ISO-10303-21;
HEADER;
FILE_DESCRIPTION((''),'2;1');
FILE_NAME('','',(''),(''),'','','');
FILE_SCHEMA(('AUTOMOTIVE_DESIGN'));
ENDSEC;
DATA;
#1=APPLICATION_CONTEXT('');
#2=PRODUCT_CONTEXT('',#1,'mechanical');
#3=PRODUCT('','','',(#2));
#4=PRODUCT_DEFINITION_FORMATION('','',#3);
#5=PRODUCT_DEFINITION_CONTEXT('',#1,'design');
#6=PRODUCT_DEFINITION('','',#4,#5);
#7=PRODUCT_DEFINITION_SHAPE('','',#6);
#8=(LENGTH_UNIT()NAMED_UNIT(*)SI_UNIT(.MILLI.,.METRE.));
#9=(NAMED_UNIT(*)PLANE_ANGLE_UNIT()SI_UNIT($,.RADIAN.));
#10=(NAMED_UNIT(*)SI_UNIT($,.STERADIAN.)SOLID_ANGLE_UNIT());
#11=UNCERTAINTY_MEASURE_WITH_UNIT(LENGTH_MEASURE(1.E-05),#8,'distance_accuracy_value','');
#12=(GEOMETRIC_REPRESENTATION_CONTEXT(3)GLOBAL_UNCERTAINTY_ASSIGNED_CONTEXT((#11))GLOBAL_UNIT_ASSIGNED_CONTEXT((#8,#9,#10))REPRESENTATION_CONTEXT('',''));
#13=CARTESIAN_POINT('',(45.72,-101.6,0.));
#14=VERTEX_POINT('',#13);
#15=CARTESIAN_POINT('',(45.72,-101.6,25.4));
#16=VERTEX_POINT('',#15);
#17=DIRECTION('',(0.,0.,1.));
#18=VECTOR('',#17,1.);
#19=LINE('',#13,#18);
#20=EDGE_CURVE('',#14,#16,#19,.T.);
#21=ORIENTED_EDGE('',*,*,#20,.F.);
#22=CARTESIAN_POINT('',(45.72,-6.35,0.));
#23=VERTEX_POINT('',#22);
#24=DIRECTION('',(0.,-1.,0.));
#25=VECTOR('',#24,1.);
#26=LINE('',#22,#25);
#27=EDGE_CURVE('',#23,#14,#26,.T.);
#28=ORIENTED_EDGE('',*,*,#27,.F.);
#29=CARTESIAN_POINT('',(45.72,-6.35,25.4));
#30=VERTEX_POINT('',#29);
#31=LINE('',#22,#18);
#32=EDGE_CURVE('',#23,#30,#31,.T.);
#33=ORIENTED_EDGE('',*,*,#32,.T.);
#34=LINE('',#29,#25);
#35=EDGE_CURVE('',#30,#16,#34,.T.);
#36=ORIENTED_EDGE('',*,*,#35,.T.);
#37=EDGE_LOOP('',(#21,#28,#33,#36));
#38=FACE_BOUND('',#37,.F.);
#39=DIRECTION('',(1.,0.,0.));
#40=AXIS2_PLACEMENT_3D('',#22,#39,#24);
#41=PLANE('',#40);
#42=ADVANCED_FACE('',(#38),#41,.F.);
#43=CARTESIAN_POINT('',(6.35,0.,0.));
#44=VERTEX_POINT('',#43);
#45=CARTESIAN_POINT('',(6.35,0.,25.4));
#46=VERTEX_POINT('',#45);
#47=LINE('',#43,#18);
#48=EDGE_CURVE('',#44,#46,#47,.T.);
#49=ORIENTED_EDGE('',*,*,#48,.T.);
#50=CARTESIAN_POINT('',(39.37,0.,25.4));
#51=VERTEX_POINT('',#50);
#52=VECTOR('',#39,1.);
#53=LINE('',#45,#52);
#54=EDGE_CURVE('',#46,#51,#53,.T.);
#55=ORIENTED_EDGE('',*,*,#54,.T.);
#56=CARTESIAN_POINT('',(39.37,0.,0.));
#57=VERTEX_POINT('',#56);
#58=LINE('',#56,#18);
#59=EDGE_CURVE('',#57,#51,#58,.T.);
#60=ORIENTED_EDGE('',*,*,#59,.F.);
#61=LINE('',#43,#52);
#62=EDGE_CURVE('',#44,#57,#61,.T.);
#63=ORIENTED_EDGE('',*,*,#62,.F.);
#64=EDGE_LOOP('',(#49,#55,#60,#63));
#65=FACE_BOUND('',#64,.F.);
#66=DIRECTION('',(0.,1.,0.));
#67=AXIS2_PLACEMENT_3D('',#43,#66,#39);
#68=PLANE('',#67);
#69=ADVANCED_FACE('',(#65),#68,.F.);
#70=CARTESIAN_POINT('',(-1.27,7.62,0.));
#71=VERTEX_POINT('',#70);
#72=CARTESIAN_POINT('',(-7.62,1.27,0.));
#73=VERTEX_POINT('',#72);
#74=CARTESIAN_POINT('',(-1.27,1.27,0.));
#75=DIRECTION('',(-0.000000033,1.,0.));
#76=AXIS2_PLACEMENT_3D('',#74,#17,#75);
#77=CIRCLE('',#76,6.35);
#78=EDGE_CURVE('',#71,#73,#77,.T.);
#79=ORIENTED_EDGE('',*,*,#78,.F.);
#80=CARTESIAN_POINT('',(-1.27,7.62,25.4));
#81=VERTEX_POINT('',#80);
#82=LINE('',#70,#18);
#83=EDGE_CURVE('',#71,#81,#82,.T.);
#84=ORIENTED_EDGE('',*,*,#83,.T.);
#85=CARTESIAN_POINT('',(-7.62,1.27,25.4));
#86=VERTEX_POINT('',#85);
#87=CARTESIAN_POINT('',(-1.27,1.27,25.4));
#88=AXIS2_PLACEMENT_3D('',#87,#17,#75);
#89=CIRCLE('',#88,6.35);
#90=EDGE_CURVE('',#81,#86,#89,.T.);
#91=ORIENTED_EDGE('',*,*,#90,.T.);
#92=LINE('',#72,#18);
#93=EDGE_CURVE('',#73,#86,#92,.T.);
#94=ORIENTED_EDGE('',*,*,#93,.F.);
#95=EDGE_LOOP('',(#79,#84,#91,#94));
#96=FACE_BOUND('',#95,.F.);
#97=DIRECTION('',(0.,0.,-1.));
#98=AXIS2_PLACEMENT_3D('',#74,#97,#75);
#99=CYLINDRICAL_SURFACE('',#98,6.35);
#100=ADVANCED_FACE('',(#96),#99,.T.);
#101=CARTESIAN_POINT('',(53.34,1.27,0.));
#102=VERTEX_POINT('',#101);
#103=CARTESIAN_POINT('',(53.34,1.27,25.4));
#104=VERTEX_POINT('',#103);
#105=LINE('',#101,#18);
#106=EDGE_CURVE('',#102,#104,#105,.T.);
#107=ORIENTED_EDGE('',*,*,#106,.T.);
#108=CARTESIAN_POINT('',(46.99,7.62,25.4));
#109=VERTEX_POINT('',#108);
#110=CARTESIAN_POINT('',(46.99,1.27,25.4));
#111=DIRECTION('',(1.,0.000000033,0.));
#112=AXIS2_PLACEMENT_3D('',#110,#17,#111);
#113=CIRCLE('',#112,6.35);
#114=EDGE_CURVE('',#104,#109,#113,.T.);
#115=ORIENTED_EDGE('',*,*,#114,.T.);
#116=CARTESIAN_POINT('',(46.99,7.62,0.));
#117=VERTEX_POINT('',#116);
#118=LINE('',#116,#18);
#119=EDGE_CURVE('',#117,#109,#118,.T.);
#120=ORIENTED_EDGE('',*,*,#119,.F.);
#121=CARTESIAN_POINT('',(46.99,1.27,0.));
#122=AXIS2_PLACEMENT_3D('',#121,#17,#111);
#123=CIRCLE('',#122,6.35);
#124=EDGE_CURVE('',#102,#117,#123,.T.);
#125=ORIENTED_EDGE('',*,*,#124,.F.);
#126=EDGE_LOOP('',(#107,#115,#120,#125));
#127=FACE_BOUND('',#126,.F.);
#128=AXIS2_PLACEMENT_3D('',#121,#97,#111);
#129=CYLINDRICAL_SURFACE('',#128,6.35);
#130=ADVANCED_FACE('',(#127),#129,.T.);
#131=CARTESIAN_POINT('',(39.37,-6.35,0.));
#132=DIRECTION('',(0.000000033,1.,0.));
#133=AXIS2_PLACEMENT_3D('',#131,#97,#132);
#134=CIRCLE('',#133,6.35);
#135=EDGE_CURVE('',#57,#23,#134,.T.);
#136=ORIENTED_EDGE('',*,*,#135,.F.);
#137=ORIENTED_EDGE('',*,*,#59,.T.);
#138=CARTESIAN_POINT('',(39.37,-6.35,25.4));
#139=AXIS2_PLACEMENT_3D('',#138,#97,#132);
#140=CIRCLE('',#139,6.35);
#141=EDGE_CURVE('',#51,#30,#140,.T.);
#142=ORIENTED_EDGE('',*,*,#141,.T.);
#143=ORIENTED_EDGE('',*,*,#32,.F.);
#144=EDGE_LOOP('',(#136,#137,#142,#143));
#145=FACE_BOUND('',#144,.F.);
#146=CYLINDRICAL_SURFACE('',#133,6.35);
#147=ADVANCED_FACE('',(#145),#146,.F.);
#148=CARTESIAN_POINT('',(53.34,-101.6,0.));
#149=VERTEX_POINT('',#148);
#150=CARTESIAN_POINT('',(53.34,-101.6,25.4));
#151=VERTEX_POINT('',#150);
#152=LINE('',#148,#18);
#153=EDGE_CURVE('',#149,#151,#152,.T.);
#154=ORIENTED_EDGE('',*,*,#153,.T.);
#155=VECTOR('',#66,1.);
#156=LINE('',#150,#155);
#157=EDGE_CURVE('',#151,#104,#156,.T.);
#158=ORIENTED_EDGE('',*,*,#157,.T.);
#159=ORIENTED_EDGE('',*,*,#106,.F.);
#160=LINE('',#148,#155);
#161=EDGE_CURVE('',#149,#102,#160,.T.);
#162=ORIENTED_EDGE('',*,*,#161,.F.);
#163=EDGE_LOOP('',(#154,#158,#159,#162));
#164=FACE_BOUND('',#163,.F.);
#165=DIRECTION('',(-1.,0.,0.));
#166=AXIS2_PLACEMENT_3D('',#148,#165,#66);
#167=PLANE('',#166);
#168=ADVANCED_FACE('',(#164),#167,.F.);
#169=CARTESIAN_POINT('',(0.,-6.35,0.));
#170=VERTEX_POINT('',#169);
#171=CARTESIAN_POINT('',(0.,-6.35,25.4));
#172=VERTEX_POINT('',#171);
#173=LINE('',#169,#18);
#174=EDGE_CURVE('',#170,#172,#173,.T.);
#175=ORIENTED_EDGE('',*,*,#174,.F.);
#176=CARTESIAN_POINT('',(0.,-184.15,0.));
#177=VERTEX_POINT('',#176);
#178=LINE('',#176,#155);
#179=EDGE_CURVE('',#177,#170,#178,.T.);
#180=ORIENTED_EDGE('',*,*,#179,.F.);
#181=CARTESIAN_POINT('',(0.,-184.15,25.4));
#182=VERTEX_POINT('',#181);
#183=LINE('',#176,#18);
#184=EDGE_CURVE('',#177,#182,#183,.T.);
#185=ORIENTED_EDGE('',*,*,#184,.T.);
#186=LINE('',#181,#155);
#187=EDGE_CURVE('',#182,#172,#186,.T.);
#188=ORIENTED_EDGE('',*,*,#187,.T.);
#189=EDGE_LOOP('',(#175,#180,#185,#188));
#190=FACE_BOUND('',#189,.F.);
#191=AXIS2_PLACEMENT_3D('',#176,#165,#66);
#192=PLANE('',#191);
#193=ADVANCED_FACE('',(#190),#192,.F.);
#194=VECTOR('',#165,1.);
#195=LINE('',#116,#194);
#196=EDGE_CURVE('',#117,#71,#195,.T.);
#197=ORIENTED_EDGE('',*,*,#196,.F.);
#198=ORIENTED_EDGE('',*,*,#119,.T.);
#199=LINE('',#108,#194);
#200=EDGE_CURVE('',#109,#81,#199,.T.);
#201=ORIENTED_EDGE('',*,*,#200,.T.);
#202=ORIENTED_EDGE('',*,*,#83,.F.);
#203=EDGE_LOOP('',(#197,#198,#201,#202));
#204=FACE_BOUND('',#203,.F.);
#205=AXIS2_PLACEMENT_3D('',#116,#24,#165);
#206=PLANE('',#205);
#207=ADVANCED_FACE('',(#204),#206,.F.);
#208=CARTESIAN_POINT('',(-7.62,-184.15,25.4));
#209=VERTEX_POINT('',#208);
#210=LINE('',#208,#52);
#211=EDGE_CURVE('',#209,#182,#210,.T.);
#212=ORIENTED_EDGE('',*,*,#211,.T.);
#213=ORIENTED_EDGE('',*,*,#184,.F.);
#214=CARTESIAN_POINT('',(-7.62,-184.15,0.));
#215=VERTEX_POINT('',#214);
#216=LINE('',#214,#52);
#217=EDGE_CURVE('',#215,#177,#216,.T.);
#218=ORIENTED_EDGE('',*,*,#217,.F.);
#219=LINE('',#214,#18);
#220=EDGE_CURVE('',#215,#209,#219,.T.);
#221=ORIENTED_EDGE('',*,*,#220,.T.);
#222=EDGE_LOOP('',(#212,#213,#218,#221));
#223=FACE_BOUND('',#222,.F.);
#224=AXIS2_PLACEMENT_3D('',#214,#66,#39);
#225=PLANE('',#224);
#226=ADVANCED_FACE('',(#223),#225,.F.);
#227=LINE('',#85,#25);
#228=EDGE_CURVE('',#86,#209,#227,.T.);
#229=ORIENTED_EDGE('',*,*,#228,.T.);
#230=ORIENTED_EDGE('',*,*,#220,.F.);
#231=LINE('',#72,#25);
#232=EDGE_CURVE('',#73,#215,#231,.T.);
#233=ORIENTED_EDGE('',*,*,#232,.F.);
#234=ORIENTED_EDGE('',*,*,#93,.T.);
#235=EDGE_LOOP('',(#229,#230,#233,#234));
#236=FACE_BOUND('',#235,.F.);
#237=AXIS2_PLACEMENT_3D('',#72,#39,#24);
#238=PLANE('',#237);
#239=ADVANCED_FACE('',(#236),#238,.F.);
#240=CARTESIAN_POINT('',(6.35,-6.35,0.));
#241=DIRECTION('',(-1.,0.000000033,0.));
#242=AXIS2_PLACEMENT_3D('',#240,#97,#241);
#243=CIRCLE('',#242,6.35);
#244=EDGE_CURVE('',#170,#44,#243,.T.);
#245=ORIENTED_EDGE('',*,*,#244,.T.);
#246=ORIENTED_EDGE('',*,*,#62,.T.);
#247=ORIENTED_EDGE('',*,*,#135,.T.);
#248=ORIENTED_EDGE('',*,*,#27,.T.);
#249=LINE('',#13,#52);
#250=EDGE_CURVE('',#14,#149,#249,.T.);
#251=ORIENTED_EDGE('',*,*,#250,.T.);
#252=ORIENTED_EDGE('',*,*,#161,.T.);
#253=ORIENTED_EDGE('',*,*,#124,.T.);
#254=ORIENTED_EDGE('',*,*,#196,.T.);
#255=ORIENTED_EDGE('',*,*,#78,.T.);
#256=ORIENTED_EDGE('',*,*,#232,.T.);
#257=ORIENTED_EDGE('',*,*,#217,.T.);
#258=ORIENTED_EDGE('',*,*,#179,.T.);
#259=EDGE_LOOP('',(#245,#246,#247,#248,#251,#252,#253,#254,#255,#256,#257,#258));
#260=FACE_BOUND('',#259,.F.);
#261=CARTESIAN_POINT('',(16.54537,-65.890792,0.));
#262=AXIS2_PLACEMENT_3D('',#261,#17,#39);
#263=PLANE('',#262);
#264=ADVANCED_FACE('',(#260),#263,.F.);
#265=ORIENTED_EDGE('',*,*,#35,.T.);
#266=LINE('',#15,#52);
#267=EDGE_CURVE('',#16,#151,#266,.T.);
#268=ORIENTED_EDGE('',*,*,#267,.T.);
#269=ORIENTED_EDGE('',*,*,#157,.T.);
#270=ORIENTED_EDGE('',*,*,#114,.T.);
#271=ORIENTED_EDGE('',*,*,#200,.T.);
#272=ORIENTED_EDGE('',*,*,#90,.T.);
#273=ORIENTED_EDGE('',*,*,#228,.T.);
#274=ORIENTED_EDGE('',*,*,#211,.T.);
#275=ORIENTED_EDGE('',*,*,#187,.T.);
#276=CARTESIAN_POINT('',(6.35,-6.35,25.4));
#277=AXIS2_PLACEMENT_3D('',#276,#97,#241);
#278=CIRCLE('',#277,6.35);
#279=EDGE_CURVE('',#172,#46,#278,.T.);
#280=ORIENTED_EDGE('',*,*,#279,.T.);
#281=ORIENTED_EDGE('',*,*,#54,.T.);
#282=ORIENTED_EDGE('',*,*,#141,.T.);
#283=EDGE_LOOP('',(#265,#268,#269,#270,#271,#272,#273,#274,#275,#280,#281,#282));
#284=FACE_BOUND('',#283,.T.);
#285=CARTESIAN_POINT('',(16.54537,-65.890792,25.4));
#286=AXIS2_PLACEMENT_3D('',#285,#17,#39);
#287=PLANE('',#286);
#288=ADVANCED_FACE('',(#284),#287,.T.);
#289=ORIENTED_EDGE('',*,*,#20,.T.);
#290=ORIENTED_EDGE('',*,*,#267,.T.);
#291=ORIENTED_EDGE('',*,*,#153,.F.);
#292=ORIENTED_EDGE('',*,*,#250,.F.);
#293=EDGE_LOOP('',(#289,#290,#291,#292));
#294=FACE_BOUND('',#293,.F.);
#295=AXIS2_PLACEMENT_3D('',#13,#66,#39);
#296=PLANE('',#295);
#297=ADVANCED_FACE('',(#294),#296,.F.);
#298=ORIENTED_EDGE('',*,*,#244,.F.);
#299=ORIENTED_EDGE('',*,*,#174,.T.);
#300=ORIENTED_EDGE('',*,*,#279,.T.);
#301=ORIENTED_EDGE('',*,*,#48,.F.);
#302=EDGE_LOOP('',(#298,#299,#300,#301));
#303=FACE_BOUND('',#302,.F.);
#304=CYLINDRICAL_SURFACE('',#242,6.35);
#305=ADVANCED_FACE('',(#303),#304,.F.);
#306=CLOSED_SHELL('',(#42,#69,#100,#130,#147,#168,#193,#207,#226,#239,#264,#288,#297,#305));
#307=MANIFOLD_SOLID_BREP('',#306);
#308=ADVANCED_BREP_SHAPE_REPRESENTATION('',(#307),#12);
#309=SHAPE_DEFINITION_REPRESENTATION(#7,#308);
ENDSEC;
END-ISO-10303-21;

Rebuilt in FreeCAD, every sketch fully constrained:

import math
import FreeCAD as App
import Part
import Sketcher
from FreeCAD import Vector
Q = App.Units.Quantity

doc = App.newDocument("Part")
body = doc.addObject("PartDesign::Body", "Body")

sketch1 = body.newObject("Sketcher::SketchObject", "Sketch")
sketch1.AttachmentSupport = (doc.getObject("XY_Plane"), [""])
sketch1.MapMode = "FlatFace"
sketch1.addGeometry([
    Part.ArcOfCircle(Part.Circle(Vector(6, -6, 0), Vector(0, 0, 1), 6), math.radians(90), math.radians(180)),
    Part.LineSegment(Vector(6, 0, 0), Vector(39, 0, 0)),
    Part.ArcOfCircle(Part.Circle(Vector(39, -6, 0), Vector(0, 0, 1), 6), math.radians(0), math.radians(90)),
    Part.LineSegment(Vector(46, -6, 0), Vector(46, -102, 0)),
    Part.LineSegment(Vector(46, -102, 0), Vector(53, -102, 0)),
    Part.LineSegment(Vector(53, -102, 0), Vector(53, 1, 0)),
    Part.ArcOfCircle(Part.Circle(Vector(47, 1, 0), Vector(0, 0, 1), 6), math.radians(0), math.radians(90)),
    Part.LineSegment(Vector(47, 8, 0), Vector(-1, 8, 0)),
    Part.ArcOfCircle(Part.Circle(Vector(-1, 1, 0), Vector(0, 0, 1), 6), math.radians(90), math.radians(180)),
    Part.LineSegment(Vector(-8, 1, 0), Vector(-8, -184, 0)),
    Part.LineSegment(Vector(-8, -184, 0), Vector(0, -184, 0)),
    Part.LineSegment(Vector(0, -184, 0), Vector(0, -6, 0)),
], False)
sketch1.addConstraint([
    Sketcher.Constraint("Tangent", 0, 1, 1, 1),
    Sketcher.Constraint("Tangent", 1, 2, 2, 2),
    Sketcher.Constraint("Tangent", 2, 1, 3, 1),
    Sketcher.Constraint("Coincident", 3, 2, 4, 1),
    Sketcher.Constraint("Coincident", 4, 2, 5, 1),
    Sketcher.Constraint("Tangent", 5, 2, 6, 1),
    Sketcher.Constraint("Tangent", 6, 2, 7, 1),
    Sketcher.Constraint("Tangent", 7, 2, 8, 1),
    Sketcher.Constraint("Tangent", 8, 2, 9, 1),
    Sketcher.Constraint("Coincident", 9, 2, 10, 1),
    Sketcher.Constraint("Coincident", 10, 2, 11, 1),
    Sketcher.Constraint("Tangent", 11, 2, 0, 2),
    Sketcher.Constraint("Horizontal", 1),
    Sketcher.Constraint("Vertical", 3),
    Sketcher.Constraint("Horizontal", 4),
    Sketcher.Constraint("Vertical", 5),
    Sketcher.Constraint("Horizontal", 7),
    Sketcher.Constraint("Vertical", 9),
    Sketcher.Constraint("Horizontal", 10),
    Sketcher.Constraint("Vertical", 11),
    Sketcher.Constraint("Equal", 0, 2),
    Sketcher.Constraint("Equal", 2, 6),
    Sketcher.Constraint("Equal", 6, 8),
    Sketcher.Constraint("PointOnObject", 0, 1, -1),
    Sketcher.Constraint("PointOnObject", 10, 2, -2),
    Sketcher.Constraint("Equal", 4, 10),
    Sketcher.Constraint("DistanceY", 11, 1, 11, 2, Q("7 in")),
    Sketcher.Constraint("Radius", 0, Q("0.25 in")),
    Sketcher.Constraint("DistanceX", 1, 1, 1, 2, Q("1.3 in")),
    Sketcher.Constraint("DistanceX", 4, 1, 4, 2, Q("0.3 in")),
    Sketcher.Constraint("DistanceY", 9, 2, 9, 1, Q("7.3 in")),
    Sketcher.Constraint("DistanceY", 3, 2, -1, 1, Q("4 in")),
])
pad1 = body.newObject("PartDesign::Pad", "Pad")
pad1.Profile = sketch1
pad1.Length = Q("1 in")

doc.recompute()
